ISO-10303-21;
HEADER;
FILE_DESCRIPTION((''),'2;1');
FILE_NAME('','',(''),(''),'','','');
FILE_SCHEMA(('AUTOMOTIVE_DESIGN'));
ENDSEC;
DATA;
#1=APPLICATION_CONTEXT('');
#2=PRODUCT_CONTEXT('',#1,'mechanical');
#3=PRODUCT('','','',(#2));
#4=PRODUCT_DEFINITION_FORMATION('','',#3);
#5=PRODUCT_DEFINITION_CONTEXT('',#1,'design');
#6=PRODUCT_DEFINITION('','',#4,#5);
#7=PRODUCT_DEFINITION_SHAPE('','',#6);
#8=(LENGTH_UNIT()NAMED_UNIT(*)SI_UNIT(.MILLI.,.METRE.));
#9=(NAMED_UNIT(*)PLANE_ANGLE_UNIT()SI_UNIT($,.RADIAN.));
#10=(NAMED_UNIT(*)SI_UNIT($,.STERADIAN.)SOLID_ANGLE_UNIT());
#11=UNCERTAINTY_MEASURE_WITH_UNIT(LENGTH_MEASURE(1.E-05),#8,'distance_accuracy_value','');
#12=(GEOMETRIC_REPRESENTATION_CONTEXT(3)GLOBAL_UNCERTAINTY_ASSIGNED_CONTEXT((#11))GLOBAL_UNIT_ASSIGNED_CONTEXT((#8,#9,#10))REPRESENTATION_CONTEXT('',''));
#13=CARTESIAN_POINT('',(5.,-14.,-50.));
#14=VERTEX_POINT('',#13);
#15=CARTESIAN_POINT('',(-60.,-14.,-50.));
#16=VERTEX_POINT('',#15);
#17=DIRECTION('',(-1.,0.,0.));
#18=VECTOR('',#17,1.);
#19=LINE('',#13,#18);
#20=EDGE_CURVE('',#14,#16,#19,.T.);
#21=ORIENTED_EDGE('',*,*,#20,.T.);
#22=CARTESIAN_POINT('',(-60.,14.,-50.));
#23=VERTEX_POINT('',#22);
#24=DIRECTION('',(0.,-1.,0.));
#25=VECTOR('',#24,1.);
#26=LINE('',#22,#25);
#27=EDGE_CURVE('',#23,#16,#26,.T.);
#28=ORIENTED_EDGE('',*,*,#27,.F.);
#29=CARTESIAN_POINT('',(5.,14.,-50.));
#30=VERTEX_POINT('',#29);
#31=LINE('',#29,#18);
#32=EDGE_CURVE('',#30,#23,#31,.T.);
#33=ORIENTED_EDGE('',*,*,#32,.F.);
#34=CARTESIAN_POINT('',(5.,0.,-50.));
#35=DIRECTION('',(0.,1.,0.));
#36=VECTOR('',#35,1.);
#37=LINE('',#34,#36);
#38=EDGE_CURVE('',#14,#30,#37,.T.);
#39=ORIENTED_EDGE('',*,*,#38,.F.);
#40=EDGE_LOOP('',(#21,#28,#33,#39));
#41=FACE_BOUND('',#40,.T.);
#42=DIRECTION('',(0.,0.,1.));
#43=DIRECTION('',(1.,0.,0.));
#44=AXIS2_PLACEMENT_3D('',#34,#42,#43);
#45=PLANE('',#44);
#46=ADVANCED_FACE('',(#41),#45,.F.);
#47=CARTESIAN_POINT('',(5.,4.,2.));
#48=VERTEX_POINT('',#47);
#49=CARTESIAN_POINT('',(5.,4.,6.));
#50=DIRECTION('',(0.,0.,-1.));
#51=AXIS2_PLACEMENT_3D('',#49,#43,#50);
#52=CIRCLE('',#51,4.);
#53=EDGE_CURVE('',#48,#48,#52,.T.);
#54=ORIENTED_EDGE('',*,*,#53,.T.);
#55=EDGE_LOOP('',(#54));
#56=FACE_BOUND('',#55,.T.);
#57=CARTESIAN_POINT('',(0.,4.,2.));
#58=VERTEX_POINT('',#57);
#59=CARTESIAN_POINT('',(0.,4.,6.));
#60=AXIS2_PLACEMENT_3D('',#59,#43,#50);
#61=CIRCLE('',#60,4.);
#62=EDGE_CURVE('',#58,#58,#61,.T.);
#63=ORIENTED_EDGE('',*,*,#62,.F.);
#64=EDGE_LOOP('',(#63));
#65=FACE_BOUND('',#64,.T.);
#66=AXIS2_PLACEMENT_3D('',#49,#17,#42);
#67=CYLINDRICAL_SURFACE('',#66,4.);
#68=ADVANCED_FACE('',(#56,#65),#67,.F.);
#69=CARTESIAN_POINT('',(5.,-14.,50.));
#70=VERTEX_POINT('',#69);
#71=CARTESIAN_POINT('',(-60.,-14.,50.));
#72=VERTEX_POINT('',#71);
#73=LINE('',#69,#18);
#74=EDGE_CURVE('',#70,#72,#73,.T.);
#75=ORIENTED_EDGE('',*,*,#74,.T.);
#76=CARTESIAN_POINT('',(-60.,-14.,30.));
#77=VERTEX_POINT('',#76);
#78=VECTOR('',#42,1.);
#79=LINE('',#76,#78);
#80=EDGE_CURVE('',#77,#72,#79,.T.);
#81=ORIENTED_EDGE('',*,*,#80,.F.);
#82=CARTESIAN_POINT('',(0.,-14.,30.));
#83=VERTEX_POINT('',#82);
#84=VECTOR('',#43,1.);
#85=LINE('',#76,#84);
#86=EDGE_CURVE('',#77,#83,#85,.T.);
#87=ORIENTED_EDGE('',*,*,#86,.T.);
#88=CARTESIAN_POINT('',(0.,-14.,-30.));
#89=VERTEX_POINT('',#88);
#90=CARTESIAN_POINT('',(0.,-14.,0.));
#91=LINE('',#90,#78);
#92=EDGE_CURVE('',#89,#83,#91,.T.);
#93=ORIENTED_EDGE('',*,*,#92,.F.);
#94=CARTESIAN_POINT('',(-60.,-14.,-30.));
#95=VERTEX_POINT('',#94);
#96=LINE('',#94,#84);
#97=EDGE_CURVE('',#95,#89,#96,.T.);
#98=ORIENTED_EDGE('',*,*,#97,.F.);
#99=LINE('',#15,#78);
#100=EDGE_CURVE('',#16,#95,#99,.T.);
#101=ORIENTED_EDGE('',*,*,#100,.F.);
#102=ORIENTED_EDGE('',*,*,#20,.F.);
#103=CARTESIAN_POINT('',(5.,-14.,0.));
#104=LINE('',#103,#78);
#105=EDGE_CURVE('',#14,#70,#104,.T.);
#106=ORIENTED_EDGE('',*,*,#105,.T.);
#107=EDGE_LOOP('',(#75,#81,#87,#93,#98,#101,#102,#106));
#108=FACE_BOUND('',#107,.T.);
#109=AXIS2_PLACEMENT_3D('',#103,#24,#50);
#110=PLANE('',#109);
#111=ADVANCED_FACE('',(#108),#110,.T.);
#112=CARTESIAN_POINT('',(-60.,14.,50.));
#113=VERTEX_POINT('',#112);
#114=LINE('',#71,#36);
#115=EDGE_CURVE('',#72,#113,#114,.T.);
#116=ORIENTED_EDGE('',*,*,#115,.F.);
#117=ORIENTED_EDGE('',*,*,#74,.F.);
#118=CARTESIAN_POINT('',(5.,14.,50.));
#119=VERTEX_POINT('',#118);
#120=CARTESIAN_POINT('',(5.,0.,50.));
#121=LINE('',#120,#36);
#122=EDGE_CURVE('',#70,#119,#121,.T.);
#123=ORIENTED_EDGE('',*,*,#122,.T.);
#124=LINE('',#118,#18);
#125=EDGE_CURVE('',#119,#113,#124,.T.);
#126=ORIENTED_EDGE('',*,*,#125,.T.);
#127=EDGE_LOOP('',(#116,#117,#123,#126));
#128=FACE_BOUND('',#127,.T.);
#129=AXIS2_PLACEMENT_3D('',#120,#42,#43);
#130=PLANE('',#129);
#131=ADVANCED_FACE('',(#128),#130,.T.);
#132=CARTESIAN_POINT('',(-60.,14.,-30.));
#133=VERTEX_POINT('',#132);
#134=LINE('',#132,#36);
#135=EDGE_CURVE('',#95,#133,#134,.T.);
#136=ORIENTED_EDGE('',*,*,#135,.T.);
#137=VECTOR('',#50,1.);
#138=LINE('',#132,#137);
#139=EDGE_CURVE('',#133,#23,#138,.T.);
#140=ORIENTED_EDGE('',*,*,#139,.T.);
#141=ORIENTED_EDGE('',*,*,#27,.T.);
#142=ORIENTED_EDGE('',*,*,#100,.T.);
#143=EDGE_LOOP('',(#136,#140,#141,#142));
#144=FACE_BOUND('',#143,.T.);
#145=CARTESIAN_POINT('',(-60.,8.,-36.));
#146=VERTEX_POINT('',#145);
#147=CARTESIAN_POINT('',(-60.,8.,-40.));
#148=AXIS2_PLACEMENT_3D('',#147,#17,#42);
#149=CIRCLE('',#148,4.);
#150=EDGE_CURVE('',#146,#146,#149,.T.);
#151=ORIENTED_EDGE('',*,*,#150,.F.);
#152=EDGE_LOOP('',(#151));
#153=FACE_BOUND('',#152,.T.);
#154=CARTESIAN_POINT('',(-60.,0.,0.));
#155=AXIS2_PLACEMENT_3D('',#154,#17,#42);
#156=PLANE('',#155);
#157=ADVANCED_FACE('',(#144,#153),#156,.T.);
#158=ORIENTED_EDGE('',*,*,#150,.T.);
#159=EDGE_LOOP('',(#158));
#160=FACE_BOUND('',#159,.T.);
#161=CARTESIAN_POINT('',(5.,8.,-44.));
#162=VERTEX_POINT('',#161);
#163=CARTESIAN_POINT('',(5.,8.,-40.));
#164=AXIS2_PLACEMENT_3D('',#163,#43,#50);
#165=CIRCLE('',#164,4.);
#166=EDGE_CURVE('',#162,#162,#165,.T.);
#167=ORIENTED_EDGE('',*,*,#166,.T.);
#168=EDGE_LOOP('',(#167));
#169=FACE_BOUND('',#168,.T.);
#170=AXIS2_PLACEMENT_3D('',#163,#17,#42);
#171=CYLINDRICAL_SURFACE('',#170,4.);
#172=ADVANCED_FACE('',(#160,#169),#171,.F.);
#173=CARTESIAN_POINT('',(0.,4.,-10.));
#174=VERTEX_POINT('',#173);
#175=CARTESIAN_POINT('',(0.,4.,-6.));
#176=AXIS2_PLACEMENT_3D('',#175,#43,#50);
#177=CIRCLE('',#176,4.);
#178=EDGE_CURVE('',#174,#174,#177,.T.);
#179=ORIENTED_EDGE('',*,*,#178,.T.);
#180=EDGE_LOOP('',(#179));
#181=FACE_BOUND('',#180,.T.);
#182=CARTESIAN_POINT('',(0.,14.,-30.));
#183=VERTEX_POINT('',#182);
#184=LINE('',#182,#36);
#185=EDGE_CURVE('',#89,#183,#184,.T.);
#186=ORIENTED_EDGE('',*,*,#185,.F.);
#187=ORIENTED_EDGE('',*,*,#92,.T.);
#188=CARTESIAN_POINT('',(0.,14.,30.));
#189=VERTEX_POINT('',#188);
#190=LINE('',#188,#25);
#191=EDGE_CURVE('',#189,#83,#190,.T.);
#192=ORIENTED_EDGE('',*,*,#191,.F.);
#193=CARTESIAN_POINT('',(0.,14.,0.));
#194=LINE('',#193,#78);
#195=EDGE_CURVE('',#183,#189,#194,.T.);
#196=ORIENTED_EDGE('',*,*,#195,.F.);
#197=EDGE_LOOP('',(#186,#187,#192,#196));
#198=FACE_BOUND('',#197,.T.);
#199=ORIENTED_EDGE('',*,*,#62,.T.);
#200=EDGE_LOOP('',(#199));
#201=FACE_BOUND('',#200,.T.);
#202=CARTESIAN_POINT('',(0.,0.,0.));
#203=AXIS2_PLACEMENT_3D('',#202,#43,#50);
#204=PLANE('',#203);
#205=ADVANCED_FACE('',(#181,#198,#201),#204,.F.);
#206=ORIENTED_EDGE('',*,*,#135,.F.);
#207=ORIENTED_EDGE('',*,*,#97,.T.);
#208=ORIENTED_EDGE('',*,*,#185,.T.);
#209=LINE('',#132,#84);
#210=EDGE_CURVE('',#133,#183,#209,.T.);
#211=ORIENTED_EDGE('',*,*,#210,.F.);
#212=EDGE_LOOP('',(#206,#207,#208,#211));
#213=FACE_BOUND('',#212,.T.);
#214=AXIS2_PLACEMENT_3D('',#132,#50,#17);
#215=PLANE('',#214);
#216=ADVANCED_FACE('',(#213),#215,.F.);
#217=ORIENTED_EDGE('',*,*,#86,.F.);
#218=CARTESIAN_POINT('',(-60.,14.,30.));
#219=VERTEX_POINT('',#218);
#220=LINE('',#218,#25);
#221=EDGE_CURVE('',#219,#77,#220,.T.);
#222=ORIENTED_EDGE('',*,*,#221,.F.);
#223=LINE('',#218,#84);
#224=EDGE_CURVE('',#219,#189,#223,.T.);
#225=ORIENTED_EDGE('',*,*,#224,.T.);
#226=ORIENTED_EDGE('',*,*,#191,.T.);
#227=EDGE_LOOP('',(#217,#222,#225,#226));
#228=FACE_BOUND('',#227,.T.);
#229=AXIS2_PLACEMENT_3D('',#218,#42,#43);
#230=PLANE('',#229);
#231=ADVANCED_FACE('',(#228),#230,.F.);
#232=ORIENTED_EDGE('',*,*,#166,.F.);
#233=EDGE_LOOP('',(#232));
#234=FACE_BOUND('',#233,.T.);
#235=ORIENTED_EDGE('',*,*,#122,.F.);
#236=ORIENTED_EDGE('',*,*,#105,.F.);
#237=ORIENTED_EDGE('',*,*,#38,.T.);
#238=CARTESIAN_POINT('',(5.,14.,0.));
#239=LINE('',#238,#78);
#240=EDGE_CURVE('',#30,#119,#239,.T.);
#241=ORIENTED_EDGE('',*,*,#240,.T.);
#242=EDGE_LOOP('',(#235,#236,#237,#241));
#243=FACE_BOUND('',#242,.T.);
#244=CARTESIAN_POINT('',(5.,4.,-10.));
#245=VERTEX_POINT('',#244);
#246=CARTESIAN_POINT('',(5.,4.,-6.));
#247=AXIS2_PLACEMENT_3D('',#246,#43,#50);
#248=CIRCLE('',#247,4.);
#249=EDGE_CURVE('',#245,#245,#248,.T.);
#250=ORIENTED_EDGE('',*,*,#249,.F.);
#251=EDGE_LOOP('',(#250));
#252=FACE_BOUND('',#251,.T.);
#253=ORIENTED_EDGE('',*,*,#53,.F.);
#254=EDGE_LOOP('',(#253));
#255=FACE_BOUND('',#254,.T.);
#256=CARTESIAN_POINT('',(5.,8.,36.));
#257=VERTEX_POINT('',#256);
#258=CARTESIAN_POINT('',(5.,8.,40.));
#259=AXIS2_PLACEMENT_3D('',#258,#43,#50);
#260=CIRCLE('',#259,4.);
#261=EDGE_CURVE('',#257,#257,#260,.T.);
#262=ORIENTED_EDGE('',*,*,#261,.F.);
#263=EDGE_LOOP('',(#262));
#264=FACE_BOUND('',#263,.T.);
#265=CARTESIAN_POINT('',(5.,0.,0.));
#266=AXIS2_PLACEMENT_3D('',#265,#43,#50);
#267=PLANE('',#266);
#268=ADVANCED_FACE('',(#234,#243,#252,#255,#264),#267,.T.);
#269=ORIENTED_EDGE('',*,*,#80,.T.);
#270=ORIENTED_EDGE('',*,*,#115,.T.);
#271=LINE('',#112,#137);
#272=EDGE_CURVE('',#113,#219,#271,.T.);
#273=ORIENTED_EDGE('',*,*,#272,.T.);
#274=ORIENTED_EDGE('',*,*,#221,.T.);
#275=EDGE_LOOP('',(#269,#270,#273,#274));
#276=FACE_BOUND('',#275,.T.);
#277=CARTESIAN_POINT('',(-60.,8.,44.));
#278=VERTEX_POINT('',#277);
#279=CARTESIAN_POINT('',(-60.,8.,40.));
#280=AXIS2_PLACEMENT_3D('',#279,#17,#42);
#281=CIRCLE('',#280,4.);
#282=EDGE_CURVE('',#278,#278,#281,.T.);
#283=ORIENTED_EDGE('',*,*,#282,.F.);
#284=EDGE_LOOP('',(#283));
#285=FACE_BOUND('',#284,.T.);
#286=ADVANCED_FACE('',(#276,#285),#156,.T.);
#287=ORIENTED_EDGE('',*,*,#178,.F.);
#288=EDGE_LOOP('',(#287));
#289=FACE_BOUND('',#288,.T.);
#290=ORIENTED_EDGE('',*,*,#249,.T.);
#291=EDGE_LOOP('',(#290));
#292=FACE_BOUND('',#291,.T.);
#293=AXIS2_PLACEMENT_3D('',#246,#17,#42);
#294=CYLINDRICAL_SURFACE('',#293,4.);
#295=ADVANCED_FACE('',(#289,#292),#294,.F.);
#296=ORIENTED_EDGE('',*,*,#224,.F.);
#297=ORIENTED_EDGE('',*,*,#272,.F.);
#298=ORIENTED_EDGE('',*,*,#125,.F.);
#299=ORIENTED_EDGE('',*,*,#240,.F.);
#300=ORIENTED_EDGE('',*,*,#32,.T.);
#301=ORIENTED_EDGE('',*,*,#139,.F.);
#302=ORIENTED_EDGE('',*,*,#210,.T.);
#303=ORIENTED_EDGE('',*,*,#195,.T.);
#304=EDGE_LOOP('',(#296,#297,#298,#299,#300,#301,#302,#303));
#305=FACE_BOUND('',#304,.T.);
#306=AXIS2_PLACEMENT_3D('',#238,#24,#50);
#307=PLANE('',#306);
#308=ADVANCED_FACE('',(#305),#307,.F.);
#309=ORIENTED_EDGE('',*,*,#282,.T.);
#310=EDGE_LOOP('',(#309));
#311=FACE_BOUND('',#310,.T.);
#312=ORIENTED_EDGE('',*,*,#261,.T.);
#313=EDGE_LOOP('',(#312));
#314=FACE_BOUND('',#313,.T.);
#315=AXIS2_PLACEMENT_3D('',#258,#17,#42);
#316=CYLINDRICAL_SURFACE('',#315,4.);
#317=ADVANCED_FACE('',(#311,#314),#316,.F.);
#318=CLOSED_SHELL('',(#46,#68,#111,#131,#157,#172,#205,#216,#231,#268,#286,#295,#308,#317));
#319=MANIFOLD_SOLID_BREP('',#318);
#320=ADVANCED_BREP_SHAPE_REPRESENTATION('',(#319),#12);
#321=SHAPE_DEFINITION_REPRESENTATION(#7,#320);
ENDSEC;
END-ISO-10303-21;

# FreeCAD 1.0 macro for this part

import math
import FreeCAD as App
import Part
import Sketcher

V = App.Vector
Q = App.Units.Quantity


def add_polygon(sketch, points):
    """Adds a closed chain of lines whose ends are joined by coincident constraints."""
    first, n = sketch.GeometryCount, len(points)
    for a, b in zip(points, points[1:] + points[:1]):
        sketch.addGeometry(Part.LineSegment(App.Vector(*a, 0), App.Vector(*b, 0)), False)
    for i in range(n):
        sketch.addConstraint(Sketcher.Constraint("Coincident", first + i, 2, first + (i + 1) % n, 1))

doc = App.newDocument("Part")
params = doc.addObject("Spreadsheet::Sheet", "Params")
for row, (alias, value) in enumerate([
    ("sketch1_radius", "4 mm"),
    ("sketch1_width", "28 mm"),
    ("sketch1_height", "100 mm"),
    ("pad1_length", "5 mm"),
    ("sketch2_diameter", "8 mm"),
    ("sketch2_width", "28 mm"),
    ("sketch2_height", "20 mm"),
    ("pad2_length", "60 mm"),
], start=1):
    params.set(f"A{row}", alias)
    params.set(f"B{row}", "=" + value)
    params.setAlias(f"B{row}", alias)

body = doc.addObject("PartDesign::Body", "Body")

# Sketch on YZ plane
sketch1 = doc.addObject("Sketcher::SketchObject", "Sketch")
body.addObject(sketch1)
sketch1.AttachmentSupport = (doc.YZ_Plane, [""])
sketch1.MapMode = "FlatFace"
add_polygon(sketch1, [(-14, 50), (-14, -50), (14, -50), (14, 50)])  # lines 0-3
sketch1.addGeometry(Part.ArcOfCircle(Part.Circle(V(8, -40, 0), V(0, 0, 1), 4), math.radians(90), math.radians(180)), False)  # 4
sketch1.addGeometry(Part.ArcOfCircle(Part.Circle(V(8, -40, 0), V(0, 0, 1), 4), math.radians(0), math.radians(90)), False)  # 5
sketch1.addGeometry(Part.ArcOfCircle(Part.Circle(V(8, -40, 0), V(0, 0, 1), 4), math.radians(-90), math.radians(0)), False)  # 6
sketch1.addGeometry(Part.ArcOfCircle(Part.Circle(V(8, -40, 0), V(0, 0, 1), 4), math.radians(180), math.radians(270)), False)  # 7
sketch1.addGeometry(Part.ArcOfCircle(Part.Circle(V(4, 6, 0), V(0, 0, 1), 4), math.radians(90), math.radians(180)), False)  # 8
sketch1.addGeometry(Part.ArcOfCircle(Part.Circle(V(4, 6, 0), V(0, 0, 1), 4), math.radians(0), math.radians(90)), False)  # 9
sketch1.addGeometry(Part.ArcOfCircle(Part.Circle(V(4, 6, 0), V(0, 0, 1), 4), math.radians(-90), math.radians(0)), False)  # 10
sketch1.addGeometry(Part.ArcOfCircle(Part.Circle(V(4, 6, 0), V(0, 0, 1), 4), math.radians(180), math.radians(270)), False)  # 11
sketch1.addGeometry(Part.ArcOfCircle(Part.Circle(V(4, -6, 0), V(0, 0, 1), 4), math.radians(180), math.radians(270)), False)  # 12
sketch1.addGeometry(Part.ArcOfCircle(Part.Circle(V(4, -6, 0), V(0, 0, 1), 4), math.radians(90), math.radians(180)), False)  # 13
sketch1.addGeometry(Part.ArcOfCircle(Part.Circle(V(4, -6, 0), V(0, 0, 1), 4), math.radians(0), math.radians(90)), False)  # 14
sketch1.addGeometry(Part.ArcOfCircle(Part.Circle(V(4, -6, 0), V(0, 0, 1), 4), math.radians(-90), math.radians(0)), False)  # 15
sketch1.addGeometry(Part.ArcOfCircle(Part.Circle(V(8, 40, 0), V(0, 0, 1), 4), math.radians(90), math.radians(180)), False)  # 16
sketch1.addGeometry(Part.ArcOfCircle(Part.Circle(V(8, 40, 0), V(0, 0, 1), 4), math.radians(0), math.radians(90)), False)  # 17
sketch1.addGeometry(Part.ArcOfCircle(Part.Circle(V(8, 40, 0), V(0, 0, 1), 4), math.radians(-90), math.radians(0)), False)  # 18
sketch1.addGeometry(Part.ArcOfCircle(Part.Circle(V(8, 40, 0), V(0, 0, 1), 4), math.radians(180), math.radians(270)), False)  # 19
sketch1.addConstraint(Sketcher.Constraint("Tangent", 4, 1, 5, 2))
sketch1.addConstraint(Sketcher.Constraint("Tangent", 5, 1, 6, 2))
sketch1.addConstraint(Sketcher.Constraint("Tangent", 6, 1, 7, 2))
sketch1.addConstraint(Sketcher.Constraint("Tangent", 7, 1, 4, 2))
sketch1.addConstraint(Sketcher.Constraint("Tangent", 8, 1, 9, 2))
sketch1.addConstraint(Sketcher.Constraint("Tangent", 9, 1, 10, 2))
sketch1.addConstraint(Sketcher.Constraint("Tangent", 10, 1, 11, 2))
sketch1.addConstraint(Sketcher.Constraint("Tangent", 11, 1, 8, 2))
sketch1.addConstraint(Sketcher.Constraint("Tangent", 12, 1, 13, 2))
sketch1.addConstraint(Sketcher.Constraint("Tangent", 13, 1, 14, 2))
sketch1.addConstraint(Sketcher.Constraint("Tangent", 14, 1, 15, 2))
sketch1.addConstraint(Sketcher.Constraint("Tangent", 15, 1, 12, 2))
sketch1.addConstraint(Sketcher.Constraint("Tangent", 16, 1, 17, 2))
sketch1.addConstraint(Sketcher.Constraint("Tangent", 17, 1, 18, 2))
sketch1.addConstraint(Sketcher.Constraint("Tangent", 18, 1, 19, 2))
sketch1.addConstraint(Sketcher.Constraint("Tangent", 19, 1, 16, 2))
sketch1.addConstraint(Sketcher.Constraint("Vertical", 0))
sketch1.addConstraint(Sketcher.Constraint("Horizontal", 1))
sketch1.addConstraint(Sketcher.Constraint("Vertical", 2))
sketch1.addConstraint(Sketcher.Constraint("Horizontal", 3))
sketch1.addConstraint(Sketcher.Constraint("Equal", 4, 5))
sketch1.addConstraint(Sketcher.Constraint("Equal", 7, 8))
sketch1.addConstraint(Sketcher.Constraint("Equal", 8, 9))
sketch1.addConstraint(Sketcher.Constraint("Equal", 11, 12))
sketch1.addConstraint(Sketcher.Constraint("Equal", 12, 13))
sketch1.addConstraint(Sketcher.Constraint("Equal", 15, 16))
sketch1.addConstraint(Sketcher.Constraint("Equal", 16, 17))
sketch1.addConstraint(Sketcher.Constraint("Symmetric", 0, 2, 2, 2, -1, 1))
sketch1.addConstraint(Sketcher.Constraint("Symmetric", 11, 1, 12, 1, -1, 1))
sketch1.addConstraint(Sketcher.Constraint("Symmetric", 8, 3, 12, 3, -1))
sketch1.addConstraint(Sketcher.Constraint("Symmetric", 4, 3, 16, 3, -1))
sketch1.addConstraint(Sketcher.Constraint("Horizontal", 7, 3, 5, 1))
sketch1.addConstraint(Sketcher.Constraint("Horizontal", 5, 1, 7, 1))
sketch1.addConstraint(Sketcher.Constraint("Horizontal", 11, 3, 9, 1))
sketch1.addConstraint(Sketcher.Constraint("Horizontal", 9, 1, 11, 1))
sketch1.addConstraint(Sketcher.Constraint("Horizontal", 12, 1, 14, 1))
sketch1.addConstraint(Sketcher.Constraint("Horizontal", 19, 3, 17, 1))
sketch1.addConstraint(Sketcher.Constraint("Horizontal", 17, 1, 19, 1))
sketch1.addConstraint(Sketcher.Constraint("Vertical", 19, 3, 4, 1))
sketch1.addConstraint(Sketcher.Constraint("Vertical", 4, 1, 6, 1))
sketch1.addConstraint(Sketcher.Constraint("Vertical", 15, 3, 7, 1))
sketch1.addConstraint(Sketcher.Constraint("Vertical", 7, 1, 8, 1))
sketch1.addConstraint(Sketcher.Constraint("Vertical", 8, 1, 10, 1))
sketch1.addConstraint(Sketcher.Constraint("Vertical", 10, 1, 13, 1))
sketch1.addConstraint(Sketcher.Constraint("Vertical", 13, 1, 15, 1))
sketch1.addConstraint(Sketcher.Constraint("Vertical", 14, 1, 16, 1))
sketch1.addConstraint(Sketcher.Constraint("Vertical", 16, 1, 18, 1))
sketch1.addConstraint(Sketcher.Constraint("Radius", 4, Q("4 mm")))
sketch1.addConstraint(Sketcher.Constraint("DistanceX", 1, 1, 1, 2, Q("28 mm")))
sketch1.addConstraint(Sketcher.Constraint("DistanceY", 0, 2, 0, 1, Q("100 mm")))
sketch1.addConstraint(Sketcher.Constraint("DistanceY", 4, 3, -1, 1, Q("40 mm")))
sketch1.addConstraint(Sketcher.Constraint("DistanceY", -1, 1, 8, 3, Q("6 mm")))
sketch1.setExpression("Constraints[51]", "Params.sketch1_radius")
sketch1.setExpression("Constraints[52]", "Params.sketch1_width")
sketch1.setExpression("Constraints[53]", "Params.sketch1_height")
pad1 = doc.addObject("PartDesign::Pad", "Pad")
body.addObject(pad1)
pad1.Profile = sketch1
pad1.setExpression("Length", "Params.pad1_length")

# Sketch on YZ plane
sketch2 = doc.addObject("Sketcher::SketchObject", "Sketch001")
body.addObject(sketch2)
sketch2.AttachmentSupport = (doc.YZ_Plane, [""])
sketch2.MapMode = "FlatFace"
sketch2.AttachmentOffset = App.Placement(V(0, 0, -60), App.Rotation())
add_polygon(sketch2, [(14, -50), (-14, -50), (-14, -30), (14, -30)])  # lines 0-3
sketch2.addGeometry(Part.Circle(V(8, -40, 0), V(0, 0, 1), 4), False)  # 4
add_polygon(sketch2, [(14, 30), (-14, 30), (-14, 50), (14, 50)])  # lines 5-8
sketch2.addGeometry(Part.Circle(V(8, 40, 0), V(0, 0, 1), 4), False)  # 9
sketch2.addConstraint(Sketcher.Constraint("Horizontal", 0))
sketch2.addConstraint(Sketcher.Constraint("Vertical", 1))
sketch2.addConstraint(Sketcher.Constraint("Horizontal", 2))
sketch2.addConstraint(Sketcher.Constraint("Vertical", 3))
sketch2.addConstraint(Sketcher.Constraint("Horizontal", 5))
sketch2.addConstraint(Sketcher.Constraint("Vertical", 6))
sketch2.addConstraint(Sketcher.Constraint("Horizontal", 7))
sketch2.addConstraint(Sketcher.Constraint("Vertical", 8))
sketch2.addConstraint(Sketcher.Constraint("Equal", 4, 9))
sketch2.addConstraint(Sketcher.Constraint("Symmetric", 2, 2, 5, 2, -1, 1))
sketch2.addConstraint(Sketcher.Constraint("Symmetric", 0, 2, 7, 2, -1, 1))
sketch2.addConstraint(Sketcher.Constraint("Symmetric", 4, 3, 9, 3, -1))
sketch2.addConstraint(Sketcher.Constraint("Vertical", 1, 2, 5, 2))
sketch2.addConstraint(Sketcher.Constraint("Diameter", 4, Q("8 mm")))
sketch2.addConstraint(Sketcher.Constraint("DistanceX", 0, 2, 0, 1, Q("28 mm")))
sketch2.addConstraint(Sketcher.Constraint("DistanceY", 1, 1, 1, 2, Q("20 mm")))
sketch2.addConstraint(Sketcher.Constraint("DistanceX", -1, 1, 4, 3, Q("8 mm")))
sketch2.addConstraint(Sketcher.Constraint("DistanceY", 4, 3, -1, 1, Q("40 mm")))
sketch2.addConstraint(Sketcher.Constraint("DistanceY", 0, 2, -1, 1, Q("50 mm")))
sketch2.setExpression("Constraints[21]", "Params.sketch2_diameter")
sketch2.setExpression("Constraints[22]", "Params.sketch2_width")
sketch2.setExpression("Constraints[23]", "Params.sketch2_height")
pad2 = doc.addObject("PartDesign::Pad", "Pad001")
body.addObject(pad2)
pad2.Profile = sketch2
pad2.setExpression("Length", "Params.pad2_length")

doc.recompute()
